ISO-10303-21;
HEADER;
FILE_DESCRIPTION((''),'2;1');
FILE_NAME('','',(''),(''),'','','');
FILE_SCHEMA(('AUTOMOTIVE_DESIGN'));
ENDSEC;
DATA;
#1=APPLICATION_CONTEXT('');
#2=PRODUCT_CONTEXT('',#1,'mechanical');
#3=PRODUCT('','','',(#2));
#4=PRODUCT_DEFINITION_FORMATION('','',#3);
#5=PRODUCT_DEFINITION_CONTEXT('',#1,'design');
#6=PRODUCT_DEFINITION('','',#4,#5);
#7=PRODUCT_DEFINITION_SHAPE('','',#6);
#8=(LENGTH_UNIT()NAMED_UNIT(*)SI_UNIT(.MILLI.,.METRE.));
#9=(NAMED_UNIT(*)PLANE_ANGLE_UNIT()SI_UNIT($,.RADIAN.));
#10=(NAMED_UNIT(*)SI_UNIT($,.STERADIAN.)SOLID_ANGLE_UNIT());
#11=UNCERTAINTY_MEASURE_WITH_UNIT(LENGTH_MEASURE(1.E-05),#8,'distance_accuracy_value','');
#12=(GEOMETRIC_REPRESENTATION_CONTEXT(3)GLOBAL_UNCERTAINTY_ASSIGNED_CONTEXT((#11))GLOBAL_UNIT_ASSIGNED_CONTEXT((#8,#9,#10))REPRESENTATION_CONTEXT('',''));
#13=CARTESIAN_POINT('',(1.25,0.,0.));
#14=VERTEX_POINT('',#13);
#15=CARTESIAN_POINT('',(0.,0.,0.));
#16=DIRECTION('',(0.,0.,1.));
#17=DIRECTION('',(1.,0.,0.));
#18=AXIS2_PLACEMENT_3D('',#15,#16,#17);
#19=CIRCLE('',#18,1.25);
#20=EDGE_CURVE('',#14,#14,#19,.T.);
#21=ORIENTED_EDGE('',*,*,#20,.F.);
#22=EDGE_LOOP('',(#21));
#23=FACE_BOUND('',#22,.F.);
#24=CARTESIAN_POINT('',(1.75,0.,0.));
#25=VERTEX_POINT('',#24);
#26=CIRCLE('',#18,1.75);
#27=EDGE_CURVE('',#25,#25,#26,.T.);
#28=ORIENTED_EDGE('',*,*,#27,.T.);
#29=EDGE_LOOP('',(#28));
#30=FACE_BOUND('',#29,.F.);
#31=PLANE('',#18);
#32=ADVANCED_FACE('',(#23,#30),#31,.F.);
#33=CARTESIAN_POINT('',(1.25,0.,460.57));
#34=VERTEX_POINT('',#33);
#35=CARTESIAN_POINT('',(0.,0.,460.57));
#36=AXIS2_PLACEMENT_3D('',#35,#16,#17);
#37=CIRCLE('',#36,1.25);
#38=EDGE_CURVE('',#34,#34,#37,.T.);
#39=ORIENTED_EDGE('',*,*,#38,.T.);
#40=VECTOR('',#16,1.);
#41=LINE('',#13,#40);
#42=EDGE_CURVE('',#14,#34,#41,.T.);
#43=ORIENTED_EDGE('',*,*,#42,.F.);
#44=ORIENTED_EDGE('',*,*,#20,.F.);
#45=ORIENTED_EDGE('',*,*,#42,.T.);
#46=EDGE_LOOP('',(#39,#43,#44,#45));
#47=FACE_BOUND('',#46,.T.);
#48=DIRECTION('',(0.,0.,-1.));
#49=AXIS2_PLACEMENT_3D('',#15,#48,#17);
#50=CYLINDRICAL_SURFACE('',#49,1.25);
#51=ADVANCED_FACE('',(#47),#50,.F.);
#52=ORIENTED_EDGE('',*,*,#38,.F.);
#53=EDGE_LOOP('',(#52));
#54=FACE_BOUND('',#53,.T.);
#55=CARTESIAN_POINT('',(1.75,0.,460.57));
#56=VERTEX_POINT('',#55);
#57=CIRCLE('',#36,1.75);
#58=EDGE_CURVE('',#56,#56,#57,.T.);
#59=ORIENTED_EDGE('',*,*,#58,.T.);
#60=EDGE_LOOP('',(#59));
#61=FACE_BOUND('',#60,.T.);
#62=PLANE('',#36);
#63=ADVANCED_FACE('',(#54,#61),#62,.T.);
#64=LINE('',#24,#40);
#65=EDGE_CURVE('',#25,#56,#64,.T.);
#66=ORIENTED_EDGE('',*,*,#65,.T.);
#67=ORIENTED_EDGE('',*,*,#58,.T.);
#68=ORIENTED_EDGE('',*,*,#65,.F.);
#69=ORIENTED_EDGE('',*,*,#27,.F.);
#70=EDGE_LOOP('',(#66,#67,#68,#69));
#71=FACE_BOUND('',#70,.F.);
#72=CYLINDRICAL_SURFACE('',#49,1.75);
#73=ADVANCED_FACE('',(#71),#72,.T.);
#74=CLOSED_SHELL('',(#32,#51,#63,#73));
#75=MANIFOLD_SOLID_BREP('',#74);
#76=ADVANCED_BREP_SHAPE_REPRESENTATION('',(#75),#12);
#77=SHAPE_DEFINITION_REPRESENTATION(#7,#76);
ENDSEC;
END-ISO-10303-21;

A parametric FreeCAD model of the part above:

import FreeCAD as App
import Part
import Sketcher
Q = App.Units.Quantity

doc = App.newDocument("Part")
body = doc.addObject("PartDesign::Body", "Body")

# Sketch on XY plane
sketch1 = doc.addObject("Sketcher::SketchObject", "Sketch")
body.addObject(sketch1)
sketch1.AttachmentSupport = (doc.XY_Plane, [""])
sketch1.MapMode = "FlatFace"
sketch1.addGeometry([
    Part.Circle(App.Vector(0, 0, 0), App.Vector(0, 0, 1), 1.8),
    Part.Circle(App.Vector(0, 0, 0), App.Vector(0, 0, 1), 1.2),
], False)
sketch1.addConstraint([
    Sketcher.Constraint("Coincident", 0, 3, -1, 1),
    Sketcher.Constraint("Coincident", 1, 3, -1, 1),
    Sketcher.Constraint("Diameter", 0, Q("3.5 mm")),
    Sketcher.Constraint("Diameter", 1, Q("2.5 mm")),
])
pad1 = doc.addObject("PartDesign::Pad", "Pad")
body.addObject(pad1)
pad1.Profile = sketch1
pad1.Length = 460.57

doc.recompute()
